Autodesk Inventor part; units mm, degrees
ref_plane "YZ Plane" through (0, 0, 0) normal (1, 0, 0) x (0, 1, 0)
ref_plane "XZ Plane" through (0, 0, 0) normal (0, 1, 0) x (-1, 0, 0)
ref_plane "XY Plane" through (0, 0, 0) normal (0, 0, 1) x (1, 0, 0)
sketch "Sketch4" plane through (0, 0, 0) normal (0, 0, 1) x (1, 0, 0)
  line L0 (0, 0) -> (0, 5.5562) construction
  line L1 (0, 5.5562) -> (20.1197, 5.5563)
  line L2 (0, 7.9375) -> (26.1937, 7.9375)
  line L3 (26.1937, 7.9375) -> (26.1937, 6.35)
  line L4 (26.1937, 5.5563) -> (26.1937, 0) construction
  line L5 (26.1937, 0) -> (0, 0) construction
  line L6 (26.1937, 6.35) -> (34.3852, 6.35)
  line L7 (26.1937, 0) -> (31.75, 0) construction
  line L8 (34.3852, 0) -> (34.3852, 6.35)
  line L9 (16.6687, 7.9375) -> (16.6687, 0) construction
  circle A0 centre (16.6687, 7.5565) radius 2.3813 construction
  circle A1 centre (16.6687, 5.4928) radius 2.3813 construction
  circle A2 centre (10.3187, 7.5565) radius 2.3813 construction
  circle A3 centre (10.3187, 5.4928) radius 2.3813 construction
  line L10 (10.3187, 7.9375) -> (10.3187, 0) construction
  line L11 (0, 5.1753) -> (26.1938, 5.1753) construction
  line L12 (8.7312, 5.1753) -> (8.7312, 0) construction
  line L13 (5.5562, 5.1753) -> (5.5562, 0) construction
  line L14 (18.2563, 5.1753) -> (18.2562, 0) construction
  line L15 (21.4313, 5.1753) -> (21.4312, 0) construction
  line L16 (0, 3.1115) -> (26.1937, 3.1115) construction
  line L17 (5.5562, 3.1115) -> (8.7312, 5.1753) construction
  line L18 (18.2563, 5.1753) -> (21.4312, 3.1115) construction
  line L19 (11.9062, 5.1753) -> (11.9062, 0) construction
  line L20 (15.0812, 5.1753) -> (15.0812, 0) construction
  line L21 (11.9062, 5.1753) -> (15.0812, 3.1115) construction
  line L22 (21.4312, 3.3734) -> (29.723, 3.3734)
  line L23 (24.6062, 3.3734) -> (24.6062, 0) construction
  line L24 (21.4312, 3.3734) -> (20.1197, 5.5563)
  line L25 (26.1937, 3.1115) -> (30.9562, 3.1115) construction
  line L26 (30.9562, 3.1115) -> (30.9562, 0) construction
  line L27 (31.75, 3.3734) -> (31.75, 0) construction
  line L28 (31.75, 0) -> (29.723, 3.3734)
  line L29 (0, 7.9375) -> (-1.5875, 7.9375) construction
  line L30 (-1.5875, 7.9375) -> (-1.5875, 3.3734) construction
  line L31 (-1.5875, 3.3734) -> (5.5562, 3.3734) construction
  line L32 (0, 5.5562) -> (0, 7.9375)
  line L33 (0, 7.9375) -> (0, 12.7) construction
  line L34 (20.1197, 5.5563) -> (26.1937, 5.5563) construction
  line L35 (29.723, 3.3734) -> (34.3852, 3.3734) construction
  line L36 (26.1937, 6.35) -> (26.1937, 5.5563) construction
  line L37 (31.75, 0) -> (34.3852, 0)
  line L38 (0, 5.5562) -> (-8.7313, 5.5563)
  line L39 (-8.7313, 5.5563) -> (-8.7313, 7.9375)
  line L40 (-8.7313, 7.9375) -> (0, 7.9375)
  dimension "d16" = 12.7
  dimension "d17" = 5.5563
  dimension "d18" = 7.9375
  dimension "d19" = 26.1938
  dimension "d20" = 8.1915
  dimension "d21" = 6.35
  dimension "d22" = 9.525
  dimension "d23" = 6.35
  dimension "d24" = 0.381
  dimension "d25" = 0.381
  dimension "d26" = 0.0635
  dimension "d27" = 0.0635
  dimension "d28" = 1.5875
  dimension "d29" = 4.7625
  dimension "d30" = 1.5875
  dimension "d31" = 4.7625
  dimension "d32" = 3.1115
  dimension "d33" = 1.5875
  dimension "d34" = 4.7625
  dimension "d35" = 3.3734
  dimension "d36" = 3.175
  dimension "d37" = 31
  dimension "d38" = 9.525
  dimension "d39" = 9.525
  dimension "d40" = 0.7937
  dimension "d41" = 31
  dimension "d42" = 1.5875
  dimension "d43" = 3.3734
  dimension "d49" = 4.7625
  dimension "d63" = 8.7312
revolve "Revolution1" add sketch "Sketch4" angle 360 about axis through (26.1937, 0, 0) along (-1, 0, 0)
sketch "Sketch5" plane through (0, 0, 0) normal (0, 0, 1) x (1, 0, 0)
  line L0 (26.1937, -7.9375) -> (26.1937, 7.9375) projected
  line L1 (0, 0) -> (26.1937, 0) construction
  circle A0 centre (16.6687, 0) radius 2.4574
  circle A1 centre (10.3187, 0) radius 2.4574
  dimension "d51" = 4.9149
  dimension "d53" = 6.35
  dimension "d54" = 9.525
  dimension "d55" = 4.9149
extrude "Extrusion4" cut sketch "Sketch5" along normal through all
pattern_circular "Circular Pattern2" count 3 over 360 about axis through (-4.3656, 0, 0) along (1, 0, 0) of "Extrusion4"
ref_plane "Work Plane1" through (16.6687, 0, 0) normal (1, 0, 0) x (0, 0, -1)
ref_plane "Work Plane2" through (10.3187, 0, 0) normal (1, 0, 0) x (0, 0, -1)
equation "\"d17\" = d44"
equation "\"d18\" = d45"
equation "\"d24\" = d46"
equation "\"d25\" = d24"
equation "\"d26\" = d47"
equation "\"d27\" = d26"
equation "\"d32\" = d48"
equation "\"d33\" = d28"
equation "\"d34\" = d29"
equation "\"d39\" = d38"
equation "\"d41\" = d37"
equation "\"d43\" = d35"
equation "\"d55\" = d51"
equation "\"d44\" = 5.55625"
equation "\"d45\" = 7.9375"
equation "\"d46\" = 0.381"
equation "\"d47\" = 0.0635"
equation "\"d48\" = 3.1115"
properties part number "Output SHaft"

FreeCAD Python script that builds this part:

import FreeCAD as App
import Part
import Sketcher

V = App.Vector
Q = App.Units.Quantity


def add_polygon(sketch, points):
    """Adds a closed chain of lines whose ends are joined by coincident constraints."""
    first, n = sketch.GeometryCount, len(points)
    for a, b in zip(points, points[1:] + points[:1]):
        sketch.addGeometry(Part.LineSegment(App.Vector(*a, 0), App.Vector(*b, 0)), False)
    for i in range(n):
        sketch.addConstraint(Sketcher.Constraint("Coincident", first + i, 2, first + (i + 1) % n, 1))

doc = App.newDocument("Part")
params = doc.addObject("Spreadsheet::Sheet", "Params")
for row, (alias, value) in enumerate([
    ("sketch1_height", "0.25 in"),
    ("sketch1_width", "0.343752 in"),
    ("sketch1_height2", "0.0625 in"),
    ("revolution_angle", "360 deg"),
], start=1):
    params.set(f"A{row}", alias)
    params.set(f"B{row}", "=" + value)
    params.setAlias(f"B{row}", alias)

body = doc.addObject("PartDesign::Body", "Body")

sketch1 = body.newObject("Sketcher::SketchObject", "Sketch")
sketch1.AttachmentSupport = (doc.getObject("XY_Plane"), [""])
sketch1.MapMode = "FlatFace"
add_polygon(sketch1, [(26.2, 7.9), (-8.7, 7.9), (-8.7, 5.6), (0, 5.6), (20.1, 5.6), (21.4, 3.4), (29.7, 3.4), (31.8, 0), (34.4, 0), (34.4, 6.3), (26.2, 6.3)])
sketch1.addConstraint([
    Sketcher.Constraint("Horizontal", 0),
    Sketcher.Constraint("Vertical", 1),
    Sketcher.Constraint("Horizontal", 2),
    Sketcher.Constraint("Horizontal", 3),
    Sketcher.Constraint("Horizontal", 5),
    Sketcher.Constraint("Horizontal", 7),
    Sketcher.Constraint("Vertical", 8),
    Sketcher.Constraint("Horizontal", 9),
    Sketcher.Constraint("Vertical", 10),
    Sketcher.Constraint("PointOnObject", 2, 2, -2),
    Sketcher.Constraint("PointOnObject", 6, 2, -1),
    Sketcher.Constraint("Parallel", 4, 6),
    Sketcher.Constraint("DistanceY", 8, 1, 8, 2, Q("0.25 in")),
    Sketcher.Constraint("DistanceX", 2, 1, 2, 2, Q("0.343752 in")),
    Sketcher.Constraint("DistanceY", 10, 1, 10, 2, Q("0.0625 in")),
    Sketcher.Constraint("DistanceX", 9, 2, 9, 1, Q("0.3225 in")),
    Sketcher.Constraint("DistanceY", -1, 1, 1, 2, Q("0.218752 in")),
    Sketcher.Constraint("DistanceX", -1, 1, 9, 2, Q("1.031248 in")),
    Sketcher.Constraint("Angle", 6, Q("-58.9993 deg")),
    Sketcher.Constraint("DistanceX", 4, 2, 9, 2, Q("0.1875 in")),
    Sketcher.Constraint("DistanceX", 9, 2, 6, 2, Q("0.218752 in")),
    Sketcher.Constraint("DistanceY", -1, 1, 4, 2, Q("0.1328 in")),
])
sketch1.setExpression("Constraints[23]", "Params.sketch1_height")
sketch1.setExpression("Constraints[24]", "Params.sketch1_width")
sketch1.setExpression("Constraints[25]", "Params.sketch1_height2")
revolution = body.newObject("PartDesign::Revolution", "Revolution")
revolution.Profile = sketch1
revolution.ReferenceAxis = (sketch1, ["H_Axis"])
revolution.setExpression("Angle", "Params.revolution_angle")

sketch2 = body.newObject("Sketcher::SketchObject", "Sketch001")
sketch2.AttachmentSupport = (doc.getObject("XY_Plane"), [""])
sketch2.MapMode = "FlatFace"
sketch2.addGeometry([
    Part.Circle(V(16.7, 0, 0), V(0, 0, 1), 2.5),
    Part.Circle(V(10.3, 0, 0), V(0, 0, 1), 2.5),
], False)
sketch2.addConstraint([
    Sketcher.Constraint("Equal", 0, 1),
    Sketcher.Constraint("PointOnObject", 0, 3, -1),
    Sketcher.Constraint("PointOnObject", 1, 3, -1),
    Sketcher.Constraint("Diameter", 0, Q("0.1935 in")),
    Sketcher.Constraint("DistanceX", 1, 3, 0, 3, Q("0.25 in")),
    Sketcher.Constraint("DistanceX", -1, 1, 0, 3, Q("0.656248 in")),
])
pocket1 = body.newObject("PartDesign::Pocket", "Pocket")
pocket1.Profile = sketch2
pocket1.Type = "ThroughAll"
pocket1.Reversed = True
doc.recompute()

polarpattern = body.newObject("PartDesign::PolarPattern", "PolarPattern")
polarpattern.Originals = [pocket1]
polarpattern.Axis = (doc.getObject("X_Axis"), [""])
polarpattern.Angle = 360
polarpattern.Occurrences = 3
body.Tip = polarpattern

doc.recompute()
